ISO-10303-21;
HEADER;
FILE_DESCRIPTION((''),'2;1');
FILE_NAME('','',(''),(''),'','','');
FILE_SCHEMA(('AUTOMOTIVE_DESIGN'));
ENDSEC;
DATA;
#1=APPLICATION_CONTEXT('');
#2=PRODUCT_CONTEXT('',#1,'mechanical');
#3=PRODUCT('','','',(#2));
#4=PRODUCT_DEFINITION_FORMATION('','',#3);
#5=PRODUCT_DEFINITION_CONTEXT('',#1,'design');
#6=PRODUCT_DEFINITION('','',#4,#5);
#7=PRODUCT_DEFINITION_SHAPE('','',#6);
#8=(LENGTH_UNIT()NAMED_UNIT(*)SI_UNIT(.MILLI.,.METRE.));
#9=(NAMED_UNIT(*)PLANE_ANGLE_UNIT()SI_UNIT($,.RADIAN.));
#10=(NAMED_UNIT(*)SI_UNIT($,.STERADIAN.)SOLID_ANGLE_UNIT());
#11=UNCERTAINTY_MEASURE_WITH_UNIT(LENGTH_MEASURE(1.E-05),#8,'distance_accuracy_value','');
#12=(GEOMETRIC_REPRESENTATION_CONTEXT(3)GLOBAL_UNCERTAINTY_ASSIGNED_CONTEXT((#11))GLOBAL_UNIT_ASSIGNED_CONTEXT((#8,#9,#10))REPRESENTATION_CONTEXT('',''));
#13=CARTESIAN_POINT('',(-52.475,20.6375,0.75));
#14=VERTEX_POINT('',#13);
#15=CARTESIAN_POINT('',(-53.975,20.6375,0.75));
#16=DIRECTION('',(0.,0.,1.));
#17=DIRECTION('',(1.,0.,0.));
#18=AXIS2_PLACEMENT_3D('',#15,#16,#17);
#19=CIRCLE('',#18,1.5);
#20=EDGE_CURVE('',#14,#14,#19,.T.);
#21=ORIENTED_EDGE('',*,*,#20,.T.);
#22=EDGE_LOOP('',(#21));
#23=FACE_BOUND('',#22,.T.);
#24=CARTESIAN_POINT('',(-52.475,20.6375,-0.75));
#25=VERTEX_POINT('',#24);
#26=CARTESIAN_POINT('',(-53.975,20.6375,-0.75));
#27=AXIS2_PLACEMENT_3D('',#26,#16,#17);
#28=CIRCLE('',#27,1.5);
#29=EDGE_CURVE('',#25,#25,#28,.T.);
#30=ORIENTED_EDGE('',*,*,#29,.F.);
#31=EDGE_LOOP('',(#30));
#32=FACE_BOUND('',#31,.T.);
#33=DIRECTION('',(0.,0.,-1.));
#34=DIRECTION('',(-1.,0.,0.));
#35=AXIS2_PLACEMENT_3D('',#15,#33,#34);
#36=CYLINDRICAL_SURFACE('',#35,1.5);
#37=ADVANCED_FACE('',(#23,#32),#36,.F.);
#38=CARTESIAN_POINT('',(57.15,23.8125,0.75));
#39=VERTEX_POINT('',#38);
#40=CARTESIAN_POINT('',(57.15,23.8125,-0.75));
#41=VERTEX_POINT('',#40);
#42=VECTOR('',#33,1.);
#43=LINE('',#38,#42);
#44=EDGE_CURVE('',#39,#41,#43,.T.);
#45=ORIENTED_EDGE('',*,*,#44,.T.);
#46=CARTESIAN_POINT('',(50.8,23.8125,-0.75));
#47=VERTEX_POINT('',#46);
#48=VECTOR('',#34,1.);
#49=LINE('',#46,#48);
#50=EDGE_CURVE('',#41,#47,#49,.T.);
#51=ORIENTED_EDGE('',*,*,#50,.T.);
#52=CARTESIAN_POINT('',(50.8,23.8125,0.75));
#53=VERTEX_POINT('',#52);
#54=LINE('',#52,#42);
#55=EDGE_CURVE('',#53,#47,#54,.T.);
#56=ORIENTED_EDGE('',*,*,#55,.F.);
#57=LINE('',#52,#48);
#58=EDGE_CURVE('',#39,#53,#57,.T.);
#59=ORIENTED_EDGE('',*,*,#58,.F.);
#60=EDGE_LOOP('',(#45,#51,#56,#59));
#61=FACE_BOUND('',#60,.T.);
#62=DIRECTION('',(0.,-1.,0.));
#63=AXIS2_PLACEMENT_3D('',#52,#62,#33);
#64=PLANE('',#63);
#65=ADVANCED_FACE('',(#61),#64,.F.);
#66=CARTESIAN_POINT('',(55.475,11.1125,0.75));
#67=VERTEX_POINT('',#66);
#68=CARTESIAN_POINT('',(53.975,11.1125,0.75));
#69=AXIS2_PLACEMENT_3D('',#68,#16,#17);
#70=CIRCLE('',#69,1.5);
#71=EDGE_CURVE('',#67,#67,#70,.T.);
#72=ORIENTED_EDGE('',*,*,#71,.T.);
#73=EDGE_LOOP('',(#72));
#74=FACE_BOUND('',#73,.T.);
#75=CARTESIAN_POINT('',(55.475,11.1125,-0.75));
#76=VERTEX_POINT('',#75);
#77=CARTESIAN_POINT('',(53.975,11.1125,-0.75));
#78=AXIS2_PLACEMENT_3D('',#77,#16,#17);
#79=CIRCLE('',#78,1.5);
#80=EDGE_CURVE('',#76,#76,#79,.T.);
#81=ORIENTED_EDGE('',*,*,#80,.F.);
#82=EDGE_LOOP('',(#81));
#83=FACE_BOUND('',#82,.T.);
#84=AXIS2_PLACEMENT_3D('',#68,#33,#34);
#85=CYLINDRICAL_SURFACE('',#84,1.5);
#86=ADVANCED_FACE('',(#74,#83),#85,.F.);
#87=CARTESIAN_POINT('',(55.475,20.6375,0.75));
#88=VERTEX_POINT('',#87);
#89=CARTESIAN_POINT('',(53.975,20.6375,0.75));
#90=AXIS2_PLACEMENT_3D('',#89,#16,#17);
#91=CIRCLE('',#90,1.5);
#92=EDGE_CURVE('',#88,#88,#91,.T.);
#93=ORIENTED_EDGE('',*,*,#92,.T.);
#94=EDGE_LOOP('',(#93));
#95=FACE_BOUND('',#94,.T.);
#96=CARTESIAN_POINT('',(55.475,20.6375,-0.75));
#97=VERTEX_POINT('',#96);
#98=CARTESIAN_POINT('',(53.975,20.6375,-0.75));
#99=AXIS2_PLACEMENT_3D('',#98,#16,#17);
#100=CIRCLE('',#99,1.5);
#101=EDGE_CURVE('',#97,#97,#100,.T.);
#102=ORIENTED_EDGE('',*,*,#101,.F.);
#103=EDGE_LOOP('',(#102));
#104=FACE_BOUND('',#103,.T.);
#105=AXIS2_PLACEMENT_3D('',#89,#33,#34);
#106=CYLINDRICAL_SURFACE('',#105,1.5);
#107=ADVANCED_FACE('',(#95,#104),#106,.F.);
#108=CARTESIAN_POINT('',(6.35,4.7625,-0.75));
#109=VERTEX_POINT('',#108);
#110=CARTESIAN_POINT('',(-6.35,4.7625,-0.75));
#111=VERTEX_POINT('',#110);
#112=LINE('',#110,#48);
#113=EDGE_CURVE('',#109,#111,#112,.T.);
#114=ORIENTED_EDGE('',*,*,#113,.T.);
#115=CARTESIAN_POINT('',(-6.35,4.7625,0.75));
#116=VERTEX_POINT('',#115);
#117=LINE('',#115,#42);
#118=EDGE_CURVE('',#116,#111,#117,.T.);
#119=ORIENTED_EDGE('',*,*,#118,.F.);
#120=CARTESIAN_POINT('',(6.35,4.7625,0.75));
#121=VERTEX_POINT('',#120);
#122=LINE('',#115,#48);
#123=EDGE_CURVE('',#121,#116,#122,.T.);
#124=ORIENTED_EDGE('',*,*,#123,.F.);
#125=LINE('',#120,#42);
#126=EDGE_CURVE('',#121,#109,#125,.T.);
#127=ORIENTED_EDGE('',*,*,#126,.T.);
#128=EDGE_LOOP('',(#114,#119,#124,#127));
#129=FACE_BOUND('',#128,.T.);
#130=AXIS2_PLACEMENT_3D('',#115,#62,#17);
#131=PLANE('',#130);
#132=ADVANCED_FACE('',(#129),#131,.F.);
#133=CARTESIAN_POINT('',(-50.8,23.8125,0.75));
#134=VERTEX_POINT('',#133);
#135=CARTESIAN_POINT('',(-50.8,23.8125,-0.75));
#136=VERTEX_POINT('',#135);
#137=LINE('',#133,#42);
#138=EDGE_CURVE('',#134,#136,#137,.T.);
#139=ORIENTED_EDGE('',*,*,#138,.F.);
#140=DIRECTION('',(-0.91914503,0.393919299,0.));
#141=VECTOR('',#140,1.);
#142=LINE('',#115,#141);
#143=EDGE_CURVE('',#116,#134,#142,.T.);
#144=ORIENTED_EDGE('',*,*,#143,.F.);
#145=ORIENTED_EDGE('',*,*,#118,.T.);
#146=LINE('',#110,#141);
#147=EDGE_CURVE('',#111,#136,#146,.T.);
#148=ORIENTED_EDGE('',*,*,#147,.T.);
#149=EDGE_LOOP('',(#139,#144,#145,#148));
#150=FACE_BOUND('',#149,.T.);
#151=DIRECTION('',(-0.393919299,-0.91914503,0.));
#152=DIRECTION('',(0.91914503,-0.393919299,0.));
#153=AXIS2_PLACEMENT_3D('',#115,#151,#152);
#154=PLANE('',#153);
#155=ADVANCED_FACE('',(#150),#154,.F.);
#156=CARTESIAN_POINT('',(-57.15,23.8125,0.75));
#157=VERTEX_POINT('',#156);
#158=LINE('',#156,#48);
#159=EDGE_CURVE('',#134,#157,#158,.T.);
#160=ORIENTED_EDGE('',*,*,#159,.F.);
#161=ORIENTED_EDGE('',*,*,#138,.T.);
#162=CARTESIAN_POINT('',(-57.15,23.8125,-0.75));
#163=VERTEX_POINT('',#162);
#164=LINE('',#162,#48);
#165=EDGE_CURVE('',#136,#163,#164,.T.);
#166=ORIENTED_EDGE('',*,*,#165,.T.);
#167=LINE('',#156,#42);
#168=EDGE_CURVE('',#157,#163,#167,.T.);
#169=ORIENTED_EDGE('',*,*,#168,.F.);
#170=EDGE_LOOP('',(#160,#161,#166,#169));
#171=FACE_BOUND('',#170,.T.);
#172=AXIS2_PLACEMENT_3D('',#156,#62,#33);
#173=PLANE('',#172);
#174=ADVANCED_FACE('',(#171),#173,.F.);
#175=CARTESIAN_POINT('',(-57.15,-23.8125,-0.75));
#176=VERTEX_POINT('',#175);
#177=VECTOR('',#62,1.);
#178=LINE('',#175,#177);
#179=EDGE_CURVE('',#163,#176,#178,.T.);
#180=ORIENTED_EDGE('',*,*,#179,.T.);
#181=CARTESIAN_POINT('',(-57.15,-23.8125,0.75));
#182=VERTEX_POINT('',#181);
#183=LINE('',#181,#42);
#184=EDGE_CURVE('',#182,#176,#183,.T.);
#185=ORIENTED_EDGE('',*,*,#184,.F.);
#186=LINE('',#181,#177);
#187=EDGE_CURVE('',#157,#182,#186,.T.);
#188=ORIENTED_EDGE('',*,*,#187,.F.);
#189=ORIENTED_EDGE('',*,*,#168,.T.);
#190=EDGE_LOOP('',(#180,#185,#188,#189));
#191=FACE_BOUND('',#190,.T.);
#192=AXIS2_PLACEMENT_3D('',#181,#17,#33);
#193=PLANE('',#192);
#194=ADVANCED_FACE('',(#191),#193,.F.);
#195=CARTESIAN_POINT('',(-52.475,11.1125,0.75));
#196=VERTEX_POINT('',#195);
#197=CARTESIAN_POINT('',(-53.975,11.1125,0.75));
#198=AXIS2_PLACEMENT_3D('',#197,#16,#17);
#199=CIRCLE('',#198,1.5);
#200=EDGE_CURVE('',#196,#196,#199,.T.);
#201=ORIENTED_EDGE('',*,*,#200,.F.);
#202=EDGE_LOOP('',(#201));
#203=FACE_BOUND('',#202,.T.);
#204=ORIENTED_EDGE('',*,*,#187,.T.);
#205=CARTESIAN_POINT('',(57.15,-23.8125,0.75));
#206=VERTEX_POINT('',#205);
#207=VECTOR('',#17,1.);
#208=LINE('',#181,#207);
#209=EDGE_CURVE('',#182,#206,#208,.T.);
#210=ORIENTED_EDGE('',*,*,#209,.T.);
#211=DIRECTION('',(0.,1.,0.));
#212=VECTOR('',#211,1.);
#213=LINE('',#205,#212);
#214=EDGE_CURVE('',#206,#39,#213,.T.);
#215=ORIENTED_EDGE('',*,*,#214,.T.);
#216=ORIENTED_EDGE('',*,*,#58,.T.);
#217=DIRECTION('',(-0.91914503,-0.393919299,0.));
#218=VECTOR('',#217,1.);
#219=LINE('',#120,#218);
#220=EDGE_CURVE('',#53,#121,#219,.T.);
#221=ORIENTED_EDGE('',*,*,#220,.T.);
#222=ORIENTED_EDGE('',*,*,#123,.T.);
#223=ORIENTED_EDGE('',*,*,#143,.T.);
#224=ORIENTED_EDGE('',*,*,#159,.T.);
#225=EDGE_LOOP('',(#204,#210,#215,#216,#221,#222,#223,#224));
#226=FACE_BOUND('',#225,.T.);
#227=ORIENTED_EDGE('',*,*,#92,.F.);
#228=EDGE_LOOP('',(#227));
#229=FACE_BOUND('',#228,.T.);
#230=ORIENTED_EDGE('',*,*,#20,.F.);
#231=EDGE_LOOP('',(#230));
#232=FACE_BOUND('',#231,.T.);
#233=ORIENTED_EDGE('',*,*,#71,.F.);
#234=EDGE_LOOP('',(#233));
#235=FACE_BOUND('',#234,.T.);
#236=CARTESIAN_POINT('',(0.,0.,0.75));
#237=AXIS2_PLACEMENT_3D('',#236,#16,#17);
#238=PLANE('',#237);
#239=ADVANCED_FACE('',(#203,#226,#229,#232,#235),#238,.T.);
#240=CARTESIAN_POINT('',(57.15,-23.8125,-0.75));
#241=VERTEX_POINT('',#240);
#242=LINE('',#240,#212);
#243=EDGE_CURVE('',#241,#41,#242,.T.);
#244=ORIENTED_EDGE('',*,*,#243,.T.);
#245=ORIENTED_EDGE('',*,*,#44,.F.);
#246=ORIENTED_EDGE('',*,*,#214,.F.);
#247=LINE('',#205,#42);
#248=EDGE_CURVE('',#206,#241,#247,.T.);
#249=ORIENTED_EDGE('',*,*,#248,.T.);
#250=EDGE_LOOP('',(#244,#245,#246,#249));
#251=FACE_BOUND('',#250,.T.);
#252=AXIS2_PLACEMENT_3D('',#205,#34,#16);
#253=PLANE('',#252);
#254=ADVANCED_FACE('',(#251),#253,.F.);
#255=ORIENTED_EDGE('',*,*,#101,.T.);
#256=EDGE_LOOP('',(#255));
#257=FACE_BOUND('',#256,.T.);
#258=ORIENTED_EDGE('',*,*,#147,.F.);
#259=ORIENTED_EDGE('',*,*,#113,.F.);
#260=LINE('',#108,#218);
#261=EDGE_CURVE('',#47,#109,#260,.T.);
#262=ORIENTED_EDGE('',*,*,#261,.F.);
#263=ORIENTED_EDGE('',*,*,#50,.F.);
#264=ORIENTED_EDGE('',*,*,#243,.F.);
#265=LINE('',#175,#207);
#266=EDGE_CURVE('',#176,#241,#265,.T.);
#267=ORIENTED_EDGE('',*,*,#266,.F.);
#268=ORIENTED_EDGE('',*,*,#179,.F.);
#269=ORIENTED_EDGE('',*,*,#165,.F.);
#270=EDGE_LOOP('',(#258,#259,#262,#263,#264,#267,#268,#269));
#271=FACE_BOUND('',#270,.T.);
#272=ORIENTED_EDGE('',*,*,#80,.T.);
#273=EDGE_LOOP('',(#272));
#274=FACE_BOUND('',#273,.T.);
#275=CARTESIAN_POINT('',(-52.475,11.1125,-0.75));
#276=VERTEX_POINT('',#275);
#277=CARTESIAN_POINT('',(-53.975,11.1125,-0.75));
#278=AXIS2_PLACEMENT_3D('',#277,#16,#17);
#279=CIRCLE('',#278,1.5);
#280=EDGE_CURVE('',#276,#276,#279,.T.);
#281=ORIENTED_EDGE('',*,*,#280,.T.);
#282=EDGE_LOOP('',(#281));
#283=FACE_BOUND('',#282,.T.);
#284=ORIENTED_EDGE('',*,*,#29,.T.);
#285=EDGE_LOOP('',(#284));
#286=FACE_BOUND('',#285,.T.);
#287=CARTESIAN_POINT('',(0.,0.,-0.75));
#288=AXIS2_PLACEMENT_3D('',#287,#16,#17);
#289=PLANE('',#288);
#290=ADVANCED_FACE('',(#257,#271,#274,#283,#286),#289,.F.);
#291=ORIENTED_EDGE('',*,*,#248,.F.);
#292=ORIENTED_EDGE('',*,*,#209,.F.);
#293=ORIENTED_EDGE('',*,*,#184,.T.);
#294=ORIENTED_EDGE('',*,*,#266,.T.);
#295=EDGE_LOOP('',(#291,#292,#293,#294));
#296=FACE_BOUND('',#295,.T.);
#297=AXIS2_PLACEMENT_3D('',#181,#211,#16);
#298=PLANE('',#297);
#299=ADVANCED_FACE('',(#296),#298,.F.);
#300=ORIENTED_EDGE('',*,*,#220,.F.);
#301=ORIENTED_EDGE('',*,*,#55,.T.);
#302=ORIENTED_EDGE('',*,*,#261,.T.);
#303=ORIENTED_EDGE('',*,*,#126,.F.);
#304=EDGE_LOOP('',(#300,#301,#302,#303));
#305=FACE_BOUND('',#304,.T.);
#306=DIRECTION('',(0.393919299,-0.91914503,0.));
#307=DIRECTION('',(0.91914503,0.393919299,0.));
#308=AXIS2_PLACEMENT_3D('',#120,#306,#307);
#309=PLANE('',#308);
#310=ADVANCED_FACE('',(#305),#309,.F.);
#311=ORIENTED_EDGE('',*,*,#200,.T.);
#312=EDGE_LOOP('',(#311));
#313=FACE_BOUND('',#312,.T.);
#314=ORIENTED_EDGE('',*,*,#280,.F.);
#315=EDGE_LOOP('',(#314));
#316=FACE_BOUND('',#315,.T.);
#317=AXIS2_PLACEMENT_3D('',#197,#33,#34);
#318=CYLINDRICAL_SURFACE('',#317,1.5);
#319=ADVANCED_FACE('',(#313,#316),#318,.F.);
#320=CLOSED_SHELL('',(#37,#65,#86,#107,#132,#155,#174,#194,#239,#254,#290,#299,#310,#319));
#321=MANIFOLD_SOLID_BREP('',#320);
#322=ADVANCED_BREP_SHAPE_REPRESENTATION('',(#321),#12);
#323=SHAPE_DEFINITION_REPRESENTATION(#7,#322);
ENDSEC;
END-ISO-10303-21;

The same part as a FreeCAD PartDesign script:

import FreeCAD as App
import Part
import Sketcher
from FreeCAD import Vector
Q = App.Units.Quantity


def add_polygon(sketch, points):
    """Adds a closed chain of lines whose ends are joined by coincident constraints."""
    first, n = sketch.GeometryCount, len(points)
    for a, b in zip(points, points[1:] + points[:1]):
        sketch.addGeometry(Part.LineSegment(App.Vector(*a, 0), App.Vector(*b, 0)), False)
    for i in range(n):
        sketch.addConstraint(Sketcher.Constraint("Coincident", first + i, 2, first + (i + 1) % n, 1))

doc = App.newDocument("Part")
params = doc.addObject("Spreadsheet::Sheet", "Params")
for row, (alias, value) in enumerate([
    ("sketch1_width", "4.5 in"),
    ("sketch1_width2", "0.5 in"),
    ("sketch1_height", "1.875 in"),
    ("pad1_length", "1.5 mm"),
], start=1):
    params.set(f"A{row}", alias)
    params.set(f"B{row}", "=" + value)
    params.setAlias(f"B{row}", alias)

body = doc.addObject("PartDesign::Body", "Body")

sketch1 = body.newObject("Sketcher::SketchObject", "Sketch")
sketch1.AttachmentSupport = (doc.getObject("XY_Plane"), [""])
sketch1.MapMode = "FlatFace"
add_polygon(sketch1, [(-57.15, -23.8125), (57.15, -23.8125), (57.15, 23.8125), (50.8, 23.8125), (6.35, 4.7625), (-6.35, 4.7625), (-50.8, 23.8125), (-57.15, 23.8125)])
sketch1.addGeometry(Part.Circle(Vector(-53.975, 11.1125, 0), Vector(0, 0, 1), 1.5), False)
sketch1.addGeometry(Part.Circle(Vector(53.975, 11.1125, 0), Vector(0, 0, 1), 1.5), False)
sketch1.addGeometry(Part.Circle(Vector(-53.975, 20.6375, 0), Vector(0, 0, 1), 1.5), False)
sketch1.addGeometry(Part.Circle(Vector(53.975, 20.6375, 0), Vector(0, 0, 1), 1.5), False)
sketch1.addConstraint(Sketcher.Constraint("Horizontal", 0))
sketch1.addConstraint(Sketcher.Constraint("Vertical", 1))
sketch1.addConstraint(Sketcher.Constraint("Horizontal", 2))
sketch1.addConstraint(Sketcher.Constraint("Horizontal", 4))
sketch1.addConstraint(Sketcher.Constraint("Horizontal", 6))
sketch1.addConstraint(Sketcher.Constraint("Vertical", 7))
sketch1.addConstraint(Sketcher.Constraint("Equal", 8, 9))
sketch1.addConstraint(Sketcher.Constraint("Equal", 9, 10))
sketch1.addConstraint(Sketcher.Constraint("Equal", 10, 11))
sketch1.addConstraint(Sketcher.Constraint("Symmetric", 0, 2, 6, 2, -1, 1))
sketch1.addConstraint(Sketcher.Constraint("Symmetric", 8, 3, 9, 3, -2))
sketch1.addConstraint(Sketcher.Constraint("Symmetric", 10, 3, 11, 3, -2))
sketch1.addConstraint(Sketcher.Constraint("Symmetric", 2, 2, 5, 2, -2))
sketch1.addConstraint(Sketcher.Constraint("Vertical", 8, 3, 10, 3))
sketch1.addConstraint(Sketcher.Constraint("Equal", 3, 5))
sketch1.addConstraint(Sketcher.Constraint("DistanceX", 0, 1, 0, 2, Q("4.5 in")))
sketch1.addConstraint(Sketcher.Constraint("DistanceX", 4, 2, 4, 1, Q("0.5 in")))
sketch1.addConstraint(Sketcher.Constraint("DistanceX", -1, 1, 2, 2, Q("2 in")))
sketch1.addConstraint(Sketcher.Constraint("DistanceY", 9, 3, 1, 2, Q("0.5 in")))
sketch1.addConstraint(Sketcher.Constraint("Diameter", 8, 3.0))
sketch1.addConstraint(Sketcher.Constraint("DistanceY", 1, 1, 1, 2, Q("1.875 in")))
sketch1.addConstraint(Sketcher.Constraint("DistanceX", 8, 3, 9, 3, Q("4.25 in")))
sketch1.addConstraint(Sketcher.Constraint("DistanceY", 0, 2, 11, 3, Q("1.75 in")))
sketch1.addConstraint(Sketcher.Constraint("DistanceY", 3, 2, 9, 3, Q("0.25 in")))
sketch1.setExpression("Constraints[23]", "Params.sketch1_width")
sketch1.setExpression("Constraints[24]", "Params.sketch1_width2")
sketch1.setExpression("Constraints[28]", "Params.sketch1_height")
pad1 = body.newObject("PartDesign::Pad", "Pad")
pad1.Profile = sketch1
pad1.setExpression("Length", "Params.pad1_length")
pad1.Midplane = True

doc.recompute()
